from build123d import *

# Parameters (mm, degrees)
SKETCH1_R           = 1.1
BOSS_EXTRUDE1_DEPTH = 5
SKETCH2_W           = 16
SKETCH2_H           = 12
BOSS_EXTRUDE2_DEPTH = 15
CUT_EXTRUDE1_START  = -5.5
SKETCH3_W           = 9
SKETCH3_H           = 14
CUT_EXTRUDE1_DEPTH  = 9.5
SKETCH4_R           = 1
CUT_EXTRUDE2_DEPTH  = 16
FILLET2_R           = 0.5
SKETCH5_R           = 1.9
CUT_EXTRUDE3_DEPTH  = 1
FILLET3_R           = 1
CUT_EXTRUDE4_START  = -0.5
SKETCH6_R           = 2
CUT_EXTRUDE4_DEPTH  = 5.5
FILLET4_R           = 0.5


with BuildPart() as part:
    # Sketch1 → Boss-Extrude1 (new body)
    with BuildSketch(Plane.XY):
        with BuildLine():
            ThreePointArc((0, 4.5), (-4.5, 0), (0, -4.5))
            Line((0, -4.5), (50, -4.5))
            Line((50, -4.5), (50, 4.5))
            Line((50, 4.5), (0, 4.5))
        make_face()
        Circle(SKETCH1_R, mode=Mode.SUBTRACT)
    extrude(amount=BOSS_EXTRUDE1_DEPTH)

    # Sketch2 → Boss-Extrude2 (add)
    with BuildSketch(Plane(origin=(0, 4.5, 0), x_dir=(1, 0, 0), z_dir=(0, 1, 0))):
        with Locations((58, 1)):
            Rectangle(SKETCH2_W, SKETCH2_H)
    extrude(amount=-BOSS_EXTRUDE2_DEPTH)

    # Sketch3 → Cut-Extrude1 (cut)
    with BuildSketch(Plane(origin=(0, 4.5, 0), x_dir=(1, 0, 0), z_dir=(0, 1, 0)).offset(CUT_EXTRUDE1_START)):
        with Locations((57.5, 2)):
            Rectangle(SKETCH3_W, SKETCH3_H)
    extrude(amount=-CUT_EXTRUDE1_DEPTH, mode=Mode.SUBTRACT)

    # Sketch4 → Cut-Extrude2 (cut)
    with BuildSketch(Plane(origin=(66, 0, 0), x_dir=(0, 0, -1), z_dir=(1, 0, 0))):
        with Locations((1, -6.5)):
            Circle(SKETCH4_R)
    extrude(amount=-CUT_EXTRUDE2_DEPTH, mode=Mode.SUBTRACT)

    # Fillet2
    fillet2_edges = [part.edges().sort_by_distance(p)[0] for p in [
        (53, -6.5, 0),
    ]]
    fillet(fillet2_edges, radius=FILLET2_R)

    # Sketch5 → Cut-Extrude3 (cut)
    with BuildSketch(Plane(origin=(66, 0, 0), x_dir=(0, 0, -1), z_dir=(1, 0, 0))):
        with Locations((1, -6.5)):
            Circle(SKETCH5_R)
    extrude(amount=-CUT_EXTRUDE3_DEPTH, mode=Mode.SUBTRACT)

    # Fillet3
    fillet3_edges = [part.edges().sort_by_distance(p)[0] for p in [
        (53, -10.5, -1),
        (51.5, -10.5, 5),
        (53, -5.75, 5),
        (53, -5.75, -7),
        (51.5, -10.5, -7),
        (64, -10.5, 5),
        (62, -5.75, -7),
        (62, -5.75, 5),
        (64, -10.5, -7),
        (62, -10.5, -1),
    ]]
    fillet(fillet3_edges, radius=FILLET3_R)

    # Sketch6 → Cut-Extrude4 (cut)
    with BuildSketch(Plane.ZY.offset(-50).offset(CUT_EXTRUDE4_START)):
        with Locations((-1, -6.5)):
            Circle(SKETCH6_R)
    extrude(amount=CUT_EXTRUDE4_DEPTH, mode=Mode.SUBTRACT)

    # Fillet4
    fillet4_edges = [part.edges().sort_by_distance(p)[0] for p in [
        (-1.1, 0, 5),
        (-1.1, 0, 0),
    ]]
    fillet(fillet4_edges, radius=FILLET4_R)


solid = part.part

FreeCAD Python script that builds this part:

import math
import FreeCAD as App
import Part
import Sketcher
Q = App.Units.Quantity


def edges_at(feature, points):
    """Names of the edges that pass closest to the given points."""
    edges = feature.Shape.Edges
    near = lambda p: min(range(len(edges)), key=lambda i: edges[i].distToShape(Part.Vertex(*p))[0])
    return sorted({f"Edge{near(p) + 1}" for p in points})


def add_polygon(sketch, points):
    """Adds a closed chain of lines whose ends are joined by coincident constraints."""
    first, n = sketch.GeometryCount, len(points)
    for a, b in zip(points, points[1:] + points[:1]):
        sketch.addGeometry(Part.LineSegment(App.Vector(*a, 0), App.Vector(*b, 0)), False)
    for i in range(n):
        sketch.addConstraint(Sketcher.Constraint("Coincident", first + i, 2, first + (i + 1) % n, 1))

doc = App.newDocument("Part")
body = doc.addObject("PartDesign::Body", "Body")

# Sketch on XY plane
sketch1 = body.newObject("Sketcher::SketchObject", "Sketch")
sketch1.AttachmentSupport = (doc.getObject("XY_Plane"), [""])
sketch1.MapMode = "FlatFace"
sketch1.addGeometry([
    Part.ArcOfCircle(Part.Circle(App.Vector(0, 0, 0), App.Vector(0, 0, 1), 4.5), math.radians(90), math.radians(270)),  # 0
    Part.LineSegment(App.Vector(0, -4.5, 0), App.Vector(50, -4.5, 0)),  # 1
    Part.LineSegment(App.Vector(50, -4.5, 0), App.Vector(50, 4.5, 0)),  # 2
    Part.LineSegment(App.Vector(50, 4.5, 0), App.Vector(0, 4.5, 0)),  # 3
    Part.Circle(App.Vector(0, 0, 0), App.Vector(0, 0, 1), 1.1),  # 4
], False)
sketch1.addConstraint([
    Sketcher.Constraint("Tangent", 0, 2, 1, 1),
    Sketcher.Constraint("Coincident", 1, 2, 2, 1),
    Sketcher.Constraint("Coincident", 2, 2, 3, 1),
    Sketcher.Constraint("Tangent", 3, 2, 0, 1),
    Sketcher.Constraint("Horizontal", 1),
    Sketcher.Constraint("Vertical", 2),
    Sketcher.Constraint("Horizontal", 3),
    Sketcher.Constraint("Coincident", 0, 3, -1, 1),
    Sketcher.Constraint("Coincident", 4, 3, -1, 1),
    Sketcher.Constraint("Diameter", 4, Q("2.2 mm")),
    Sketcher.Constraint("Radius", 0, Q("4.5 mm")),
    Sketcher.Constraint("DistanceX", 1, 1, 1, 2, Q("50 mm")),
])
pad1 = body.newObject("PartDesign::Pad", "Pad")
pad1.Profile = sketch1
pad1.Length = 5

# Sketch on XZ plane
sketch2 = body.newObject("Sketcher::SketchObject", "Sketch001")
sketch2.AttachmentSupport = (doc.getObject("XZ_Plane"), [""])
sketch2.MapMode = "FlatFace"
sketch2.AttachmentOffset = App.Placement(App.Vector(0, 0, -4.5), App.Rotation())
add_polygon(sketch2, [(50, -7), (50, 5), (66, 5), (66, -7)])  # lines 0-3
sketch2.addConstraint([
    Sketcher.Constraint("Vertical", 0),
    Sketcher.Constraint("Horizontal", 1),
    Sketcher.Constraint("Vertical", 2),
    Sketcher.Constraint("Horizontal", 3),
    Sketcher.Constraint("DistanceX", 1, 1, 1, 2, Q("16 mm")),
    Sketcher.Constraint("DistanceY", 0, 1, 0, 2, Q("12 mm")),
    Sketcher.Constraint("DistanceX", -1, 1, 0, 2, Q("50 mm")),
    Sketcher.Constraint("DistanceY", -1, 1, 0, 2, Q("5 mm")),
])
pad2 = body.newObject("PartDesign::Pad", "Pad001")
pad2.Profile = sketch2
pad2.Length = 15

# Sketch on XZ plane
sketch3 = body.newObject("Sketcher::SketchObject", "Sketch002")
sketch3.AttachmentSupport = (doc.getObject("XZ_Plane"), [""])
sketch3.MapMode = "FlatFace"
sketch3.AttachmentOffset = App.Placement(App.Vector(0, 0, 1), App.Rotation())
add_polygon(sketch3, [(53, -9), (53, 5), (62, 5), (62, -9)])  # lines 0-3
sketch3.addConstraint([
    Sketcher.Constraint("Vertical", 0),
    Sketcher.Constraint("Horizontal", 1),
    Sketcher.Constraint("Vertical", 2),
    Sketcher.Constraint("Horizontal", 3),
    Sketcher.Constraint("DistanceX", 1, 1, 1, 2, Q("9 mm")),
    Sketcher.Constraint("DistanceY", 0, 1, 0, 2, Q("14 mm")),
    Sketcher.Constraint("DistanceX", -1, 1, 0, 2, Q("53 mm")),
    Sketcher.Constraint("DistanceY", -1, 1, 0, 2, Q("5 mm")),
])
pocket1 = body.newObject("PartDesign::Pocket", "Pocket")
pocket1.Profile = sketch3
pocket1.Length = 9.5
pocket1.Reversed = True

# Sketch on YZ plane
sketch4 = body.newObject("Sketcher::SketchObject", "Sketch003")
sketch4.AttachmentSupport = (doc.getObject("YZ_Plane"), [""])
sketch4.MapMode = "FlatFace"
sketch4.AttachmentOffset = App.Placement(App.Vector(0, 0, 66), App.Rotation())
sketch4.addGeometry(Part.Circle(App.Vector(-6.5, -1, 0), App.Vector(0, 0, 1), 1), False)
sketch4.addConstraint([
    Sketcher.Constraint("Diameter", 0, Q("2 mm")),
    Sketcher.Constraint("DistanceY", 0, 3, -1, 1, Q("1 mm")),
    Sketcher.Constraint("DistanceX", 0, 3, -1, 1, Q("6.5 mm")),
])
pocket2 = body.newObject("PartDesign::Pocket", "Pocket001")
pocket2.Profile = sketch4
pocket2.Length = 16
doc.recompute()

fillet = body.newObject("PartDesign::Fillet", "Fillet")
fillet.Base = (pocket2, edges_at(pocket2, [(53, -6.5, 0)]))
fillet.Radius = 0.5

# Sketch on YZ plane
sketch5 = body.newObject("Sketcher::SketchObject", "Sketch004")
sketch5.AttachmentSupport = (doc.getObject("YZ_Plane"), [""])
sketch5.MapMode = "FlatFace"
sketch5.AttachmentOffset = App.Placement(App.Vector(0, 0, 66), App.Rotation())
sketch5.addGeometry(Part.Circle(App.Vector(-6.5, -1, 0), App.Vector(0, 0, 1), 1.9), False)
sketch5.addConstraint([
    Sketcher.Constraint("Diameter", 0, Q("3.8 mm")),
    Sketcher.Constraint("DistanceY", 0, 3, -1, 1, Q("1 mm")),
    Sketcher.Constraint("DistanceX", 0, 3, -1, 1, Q("6.5 mm")),
])
pocket3 = body.newObject("PartDesign::Pocket", "Pocket002")
pocket3.Profile = sketch5
pocket3.Length = 1
doc.recompute()

fillet2 = body.newObject("PartDesign::Fillet", "Fillet001")
fillet2.Base = (pocket3, edges_at(pocket3, [
    (53, -10.5, -1),
    (51.5, -10.5, 5),
    (53, -5.75, 5),
    (53, -5.75, -7),
    (51.5, -10.5, -7),
    (64, -10.5, 5),
    (62, -5.75, -7),
    (62, -5.75, 5),
    (64, -10.5, -7),
    (62, -10.5, -1),
]))
fillet2.Radius = 1

# Sketch on YZ plane
sketch6 = body.newObject("Sketcher::SketchObject", "Sketch005")
sketch6.AttachmentSupport = (doc.getObject("YZ_Plane"), [""])
sketch6.MapMode = "FlatFace"
sketch6.AttachmentOffset = App.Placement(App.Vector(0, 0, 50.5), App.Rotation())
sketch6.addGeometry(Part.Circle(App.Vector(-6.5, -1, 0), App.Vector(0, 0, 1), 2), False)
sketch6.addConstraint([
    Sketcher.Constraint("Diameter", 0, Q("4 mm")),
    Sketcher.Constraint("DistanceY", 0, 3, -1, 1, Q("1 mm")),
    Sketcher.Constraint("DistanceX", 0, 3, -1, 1, Q("6.5 mm")),
])
pocket4 = body.newObject("PartDesign::Pocket", "Pocket003")
pocket4.Profile = sketch6
pocket4.Length = 5.5
doc.recompute()

fillet3 = body.newObject("PartDesign::Fillet", "Fillet002")
fillet3.Base = (pocket4, edges_at(pocket4, [(-1.1, 0, 5), (-1.1, 0, 0)]))
fillet3.Radius = 0.5

doc.recompute()
